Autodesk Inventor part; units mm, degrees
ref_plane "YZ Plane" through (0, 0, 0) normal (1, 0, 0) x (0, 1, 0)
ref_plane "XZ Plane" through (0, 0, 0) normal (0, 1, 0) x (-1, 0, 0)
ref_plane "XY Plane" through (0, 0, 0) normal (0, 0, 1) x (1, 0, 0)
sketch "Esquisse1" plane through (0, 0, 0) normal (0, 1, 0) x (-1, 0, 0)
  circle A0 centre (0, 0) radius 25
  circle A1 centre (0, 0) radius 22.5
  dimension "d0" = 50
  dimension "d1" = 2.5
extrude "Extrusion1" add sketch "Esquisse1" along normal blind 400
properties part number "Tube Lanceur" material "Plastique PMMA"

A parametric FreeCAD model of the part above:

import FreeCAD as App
import Part
import Sketcher

V = App.Vector

doc = App.newDocument("Part")
body = doc.addObject("PartDesign::Body", "Body")

# Sketch on XZ plane
sketch1 = body.newObject("Sketcher::SketchObject", "Sketch")
sketch1.AttachmentSupport = (doc.getObject("XZ_Plane"), [""])
sketch1.MapMode = "FlatFace"
sketch1.addGeometry([
    Part.Circle(V(0, 0, 0), V(0, 0, 1), 25),
    Part.Circle(V(0, 0, 0), V(0, 0, 1), 22.5),
], False)
sketch1.addConstraint([
    Sketcher.Constraint("Coincident", 0, 3, -1, 1),
    Sketcher.Constraint("Coincident", 1, 3, -1, 1),
    Sketcher.Constraint("Diameter", 0, 50.0),
    Sketcher.Constraint("Diameter", 1, 45.0),
])
pad1 = body.newObject("PartDesign::Pad", "Pad")
pad1.Profile = sketch1
pad1.Length = 400
pad1.Reversed = True

doc.recompute()
